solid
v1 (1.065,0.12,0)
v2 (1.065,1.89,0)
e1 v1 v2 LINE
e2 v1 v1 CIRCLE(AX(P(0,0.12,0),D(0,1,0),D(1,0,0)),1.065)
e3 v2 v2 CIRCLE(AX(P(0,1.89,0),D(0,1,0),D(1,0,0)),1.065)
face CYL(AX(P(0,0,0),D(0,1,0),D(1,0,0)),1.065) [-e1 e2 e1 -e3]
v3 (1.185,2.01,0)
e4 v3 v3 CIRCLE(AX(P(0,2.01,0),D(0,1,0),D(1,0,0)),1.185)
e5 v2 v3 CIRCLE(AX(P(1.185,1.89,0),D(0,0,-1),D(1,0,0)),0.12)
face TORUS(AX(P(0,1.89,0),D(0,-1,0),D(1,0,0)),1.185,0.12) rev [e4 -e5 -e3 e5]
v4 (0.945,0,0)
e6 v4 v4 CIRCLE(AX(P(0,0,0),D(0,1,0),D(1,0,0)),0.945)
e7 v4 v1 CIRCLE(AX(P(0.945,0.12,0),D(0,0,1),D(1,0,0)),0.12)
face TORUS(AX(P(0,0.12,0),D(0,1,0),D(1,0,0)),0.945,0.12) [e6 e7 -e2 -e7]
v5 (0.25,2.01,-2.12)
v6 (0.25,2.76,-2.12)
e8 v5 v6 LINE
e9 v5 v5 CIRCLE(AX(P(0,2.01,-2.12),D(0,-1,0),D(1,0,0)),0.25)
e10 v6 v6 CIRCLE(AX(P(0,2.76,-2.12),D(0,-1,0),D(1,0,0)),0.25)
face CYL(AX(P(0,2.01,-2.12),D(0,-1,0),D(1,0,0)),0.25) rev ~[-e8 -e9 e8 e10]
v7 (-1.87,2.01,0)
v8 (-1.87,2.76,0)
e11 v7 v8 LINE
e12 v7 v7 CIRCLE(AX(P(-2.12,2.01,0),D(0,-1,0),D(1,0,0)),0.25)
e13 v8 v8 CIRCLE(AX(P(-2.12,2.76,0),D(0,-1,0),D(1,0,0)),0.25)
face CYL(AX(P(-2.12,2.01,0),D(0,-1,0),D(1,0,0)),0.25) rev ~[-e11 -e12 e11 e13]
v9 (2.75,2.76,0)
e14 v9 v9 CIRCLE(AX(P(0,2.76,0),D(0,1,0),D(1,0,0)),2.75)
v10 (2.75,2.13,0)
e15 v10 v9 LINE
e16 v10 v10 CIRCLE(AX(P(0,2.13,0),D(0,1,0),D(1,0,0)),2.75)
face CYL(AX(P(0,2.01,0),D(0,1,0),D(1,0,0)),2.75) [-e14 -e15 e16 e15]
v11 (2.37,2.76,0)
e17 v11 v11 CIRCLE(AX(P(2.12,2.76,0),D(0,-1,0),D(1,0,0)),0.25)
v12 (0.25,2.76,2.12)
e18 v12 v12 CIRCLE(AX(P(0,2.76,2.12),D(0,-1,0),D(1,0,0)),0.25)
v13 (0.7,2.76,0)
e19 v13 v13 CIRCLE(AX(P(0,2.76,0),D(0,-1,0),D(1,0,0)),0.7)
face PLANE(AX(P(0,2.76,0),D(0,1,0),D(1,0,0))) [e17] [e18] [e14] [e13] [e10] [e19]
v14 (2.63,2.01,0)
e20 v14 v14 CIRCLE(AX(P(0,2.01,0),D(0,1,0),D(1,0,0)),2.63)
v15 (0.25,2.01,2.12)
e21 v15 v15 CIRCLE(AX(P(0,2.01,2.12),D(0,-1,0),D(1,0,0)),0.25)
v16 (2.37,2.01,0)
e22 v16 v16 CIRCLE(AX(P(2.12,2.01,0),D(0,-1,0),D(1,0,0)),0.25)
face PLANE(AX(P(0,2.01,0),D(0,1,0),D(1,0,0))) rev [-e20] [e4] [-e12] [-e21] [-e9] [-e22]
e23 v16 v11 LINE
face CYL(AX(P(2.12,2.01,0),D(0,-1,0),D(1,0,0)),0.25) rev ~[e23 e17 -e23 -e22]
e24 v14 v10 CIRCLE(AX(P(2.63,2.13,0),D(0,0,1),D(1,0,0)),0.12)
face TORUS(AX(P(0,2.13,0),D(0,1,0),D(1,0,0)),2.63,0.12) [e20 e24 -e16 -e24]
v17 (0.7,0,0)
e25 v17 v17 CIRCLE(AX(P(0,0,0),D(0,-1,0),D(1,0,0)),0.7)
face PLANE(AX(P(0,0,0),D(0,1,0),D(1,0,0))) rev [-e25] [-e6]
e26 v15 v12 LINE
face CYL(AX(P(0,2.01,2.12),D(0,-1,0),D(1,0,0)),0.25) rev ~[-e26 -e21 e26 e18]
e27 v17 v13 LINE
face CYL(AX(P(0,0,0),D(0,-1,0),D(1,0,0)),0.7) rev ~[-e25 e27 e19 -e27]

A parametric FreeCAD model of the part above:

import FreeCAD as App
import Part
import Sketcher
from FreeCAD import Vector
Q = App.Units.Quantity


def edges_at(feature, points):
    """Names of the edges that pass closest to the given points."""
    edges = feature.Shape.Edges
    near = lambda p: min(range(len(edges)), key=lambda i: edges[i].distToShape(Part.Vertex(*p))[0])
    return sorted({f"Edge{near(p) + 1}" for p in points})

doc = App.newDocument("Part")
body = doc.addObject("PartDesign::Body", "Body")

sketch1 = body.newObject("Sketcher::SketchObject", "Sketch")
sketch1.AttachmentSupport = (doc.getObject("XY_Plane"), [""])
sketch1.MapMode = "FlatFace"
sketch1.addGeometry([
    Part.LineSegment(Vector(0, 2.8, 0), Vector(0, 0, 0)),
    Part.LineSegment(Vector(0, 0, 0), Vector(1.1, 0, 0)),
    Part.LineSegment(Vector(1.1, 0, 0), Vector(1.1, 2, 0)),
    Part.LineSegment(Vector(1.1, 2, 0), Vector(2.8, 2, 0)),
    Part.LineSegment(Vector(2.8, 2, 0), Vector(2.8, 2.8, 0)),
    Part.LineSegment(Vector(2.8, 2.8, 0), Vector(0, 2.8, 0)),
], False)
sketch1.addConstraint([
    Sketcher.Constraint("Coincident", 0, 2, 1, 1),
    Sketcher.Constraint("Coincident", 1, 2, 2, 1),
    Sketcher.Constraint("Coincident", 2, 2, 3, 1),
    Sketcher.Constraint("Coincident", 3, 2, 4, 1),
    Sketcher.Constraint("Coincident", 4, 2, 5, 1),
    Sketcher.Constraint("Coincident", 5, 2, 0, 1),
    Sketcher.Constraint("Vertical", 0),
    Sketcher.Constraint("Horizontal", 1),
    Sketcher.Constraint("Vertical", 2),
    Sketcher.Constraint("Horizontal", 3),
    Sketcher.Constraint("Vertical", 4),
    Sketcher.Constraint("Horizontal", 5),
    Sketcher.Constraint("Coincident", 0, 2, -1, 1),
    Sketcher.Constraint("DistanceX", 5, 2, 5, 1, Q("2.75 mm")),
    Sketcher.Constraint("DistanceY", 0, 2, 0, 1, Q("2.76 mm")),
    Sketcher.Constraint("DistanceY", 2, 1, 2, 2, Q("2.01 mm")),
    Sketcher.Constraint("DistanceX", 1, 1, 1, 2, Q("1.065 mm")),
])
revolution = body.newObject("PartDesign::Revolution", "Revolution")
revolution.Profile = sketch1
revolution.ReferenceAxis = (sketch1, ["V_Axis"])
revolution.Angle = 360

sketch2 = body.newObject("Sketcher::SketchObject", "Sketch001")
sketch2.AttachmentSupport = (doc.getObject("XZ_Plane"), [""])
sketch2.MapMode = "FlatFace"
sketch2.addGeometry(Part.Circle(Vector(0, 0, 0), Vector(0, 0, 1), 0.7), False)
sketch2.addConstraint([
    Sketcher.Constraint("Coincident", 0, 3, -1, 1),
    Sketcher.Constraint("Diameter", 0, Q("1.4 mm")),
])
pocket1 = body.newObject("PartDesign::Pocket", "Pocket")
pocket1.Profile = sketch2
pocket1.Type = "ThroughAll"

sketch3 = body.newObject("Sketcher::SketchObject", "Sketch002")
sketch3.AttachmentSupport = (doc.getObject("XZ_Plane"), [""])
sketch3.MapMode = "FlatFace"
sketch3.AttachmentOffset = App.Placement(Vector(0, 0, -2.01), App.Rotation())
sketch3.addGeometry([
    Part.Circle(Vector(0, 2.12, 0), Vector(0, 0, 1), 0.25),
    Part.Circle(Vector(2.12, 0, 0), Vector(0, 0, 1), 0.25),
    Part.Circle(Vector(0, -2.12, 0), Vector(0, 0, 1), 0.25),
    Part.Circle(Vector(-2.12, 0, 0), Vector(0, 0, 1), 0.25),
], False)
sketch3.addConstraint([
    Sketcher.Constraint("Equal", 0, 1),
    Sketcher.Constraint("Equal", 1, 2),
    Sketcher.Constraint("Equal", 2, 3),
    Sketcher.Constraint("Symmetric", 0, 3, 2, 3, -1, 1),
    Sketcher.Constraint("Symmetric", 1, 3, 3, 3, -1, 1),
    Sketcher.Constraint("PointOnObject", 0, 3, -2),
    Sketcher.Constraint("PointOnObject", 1, 3, -1),
    Sketcher.Constraint("Diameter", 0, Q("0.5 mm")),
    Sketcher.Constraint("DistanceY", -1, 1, 0, 3, Q("2.12 mm")),
    Sketcher.Constraint("DistanceX", -1, 1, 1, 3, Q("2.12 mm")),
])
pocket2 = body.newObject("PartDesign::Pocket", "Pocket001")
pocket2.Profile = sketch3
pocket2.Type = "ThroughAll"
doc.recompute()

fillet = body.newObject("PartDesign::Fillet", "Fillet")
fillet.Base = (pocket2, edges_at(pocket2, [(-2.75, 2.01, 0), (-1.065, 2.01, 0), (-1.065, 0, 0)]))
fillet.Radius = 0.12

doc.recompute()
